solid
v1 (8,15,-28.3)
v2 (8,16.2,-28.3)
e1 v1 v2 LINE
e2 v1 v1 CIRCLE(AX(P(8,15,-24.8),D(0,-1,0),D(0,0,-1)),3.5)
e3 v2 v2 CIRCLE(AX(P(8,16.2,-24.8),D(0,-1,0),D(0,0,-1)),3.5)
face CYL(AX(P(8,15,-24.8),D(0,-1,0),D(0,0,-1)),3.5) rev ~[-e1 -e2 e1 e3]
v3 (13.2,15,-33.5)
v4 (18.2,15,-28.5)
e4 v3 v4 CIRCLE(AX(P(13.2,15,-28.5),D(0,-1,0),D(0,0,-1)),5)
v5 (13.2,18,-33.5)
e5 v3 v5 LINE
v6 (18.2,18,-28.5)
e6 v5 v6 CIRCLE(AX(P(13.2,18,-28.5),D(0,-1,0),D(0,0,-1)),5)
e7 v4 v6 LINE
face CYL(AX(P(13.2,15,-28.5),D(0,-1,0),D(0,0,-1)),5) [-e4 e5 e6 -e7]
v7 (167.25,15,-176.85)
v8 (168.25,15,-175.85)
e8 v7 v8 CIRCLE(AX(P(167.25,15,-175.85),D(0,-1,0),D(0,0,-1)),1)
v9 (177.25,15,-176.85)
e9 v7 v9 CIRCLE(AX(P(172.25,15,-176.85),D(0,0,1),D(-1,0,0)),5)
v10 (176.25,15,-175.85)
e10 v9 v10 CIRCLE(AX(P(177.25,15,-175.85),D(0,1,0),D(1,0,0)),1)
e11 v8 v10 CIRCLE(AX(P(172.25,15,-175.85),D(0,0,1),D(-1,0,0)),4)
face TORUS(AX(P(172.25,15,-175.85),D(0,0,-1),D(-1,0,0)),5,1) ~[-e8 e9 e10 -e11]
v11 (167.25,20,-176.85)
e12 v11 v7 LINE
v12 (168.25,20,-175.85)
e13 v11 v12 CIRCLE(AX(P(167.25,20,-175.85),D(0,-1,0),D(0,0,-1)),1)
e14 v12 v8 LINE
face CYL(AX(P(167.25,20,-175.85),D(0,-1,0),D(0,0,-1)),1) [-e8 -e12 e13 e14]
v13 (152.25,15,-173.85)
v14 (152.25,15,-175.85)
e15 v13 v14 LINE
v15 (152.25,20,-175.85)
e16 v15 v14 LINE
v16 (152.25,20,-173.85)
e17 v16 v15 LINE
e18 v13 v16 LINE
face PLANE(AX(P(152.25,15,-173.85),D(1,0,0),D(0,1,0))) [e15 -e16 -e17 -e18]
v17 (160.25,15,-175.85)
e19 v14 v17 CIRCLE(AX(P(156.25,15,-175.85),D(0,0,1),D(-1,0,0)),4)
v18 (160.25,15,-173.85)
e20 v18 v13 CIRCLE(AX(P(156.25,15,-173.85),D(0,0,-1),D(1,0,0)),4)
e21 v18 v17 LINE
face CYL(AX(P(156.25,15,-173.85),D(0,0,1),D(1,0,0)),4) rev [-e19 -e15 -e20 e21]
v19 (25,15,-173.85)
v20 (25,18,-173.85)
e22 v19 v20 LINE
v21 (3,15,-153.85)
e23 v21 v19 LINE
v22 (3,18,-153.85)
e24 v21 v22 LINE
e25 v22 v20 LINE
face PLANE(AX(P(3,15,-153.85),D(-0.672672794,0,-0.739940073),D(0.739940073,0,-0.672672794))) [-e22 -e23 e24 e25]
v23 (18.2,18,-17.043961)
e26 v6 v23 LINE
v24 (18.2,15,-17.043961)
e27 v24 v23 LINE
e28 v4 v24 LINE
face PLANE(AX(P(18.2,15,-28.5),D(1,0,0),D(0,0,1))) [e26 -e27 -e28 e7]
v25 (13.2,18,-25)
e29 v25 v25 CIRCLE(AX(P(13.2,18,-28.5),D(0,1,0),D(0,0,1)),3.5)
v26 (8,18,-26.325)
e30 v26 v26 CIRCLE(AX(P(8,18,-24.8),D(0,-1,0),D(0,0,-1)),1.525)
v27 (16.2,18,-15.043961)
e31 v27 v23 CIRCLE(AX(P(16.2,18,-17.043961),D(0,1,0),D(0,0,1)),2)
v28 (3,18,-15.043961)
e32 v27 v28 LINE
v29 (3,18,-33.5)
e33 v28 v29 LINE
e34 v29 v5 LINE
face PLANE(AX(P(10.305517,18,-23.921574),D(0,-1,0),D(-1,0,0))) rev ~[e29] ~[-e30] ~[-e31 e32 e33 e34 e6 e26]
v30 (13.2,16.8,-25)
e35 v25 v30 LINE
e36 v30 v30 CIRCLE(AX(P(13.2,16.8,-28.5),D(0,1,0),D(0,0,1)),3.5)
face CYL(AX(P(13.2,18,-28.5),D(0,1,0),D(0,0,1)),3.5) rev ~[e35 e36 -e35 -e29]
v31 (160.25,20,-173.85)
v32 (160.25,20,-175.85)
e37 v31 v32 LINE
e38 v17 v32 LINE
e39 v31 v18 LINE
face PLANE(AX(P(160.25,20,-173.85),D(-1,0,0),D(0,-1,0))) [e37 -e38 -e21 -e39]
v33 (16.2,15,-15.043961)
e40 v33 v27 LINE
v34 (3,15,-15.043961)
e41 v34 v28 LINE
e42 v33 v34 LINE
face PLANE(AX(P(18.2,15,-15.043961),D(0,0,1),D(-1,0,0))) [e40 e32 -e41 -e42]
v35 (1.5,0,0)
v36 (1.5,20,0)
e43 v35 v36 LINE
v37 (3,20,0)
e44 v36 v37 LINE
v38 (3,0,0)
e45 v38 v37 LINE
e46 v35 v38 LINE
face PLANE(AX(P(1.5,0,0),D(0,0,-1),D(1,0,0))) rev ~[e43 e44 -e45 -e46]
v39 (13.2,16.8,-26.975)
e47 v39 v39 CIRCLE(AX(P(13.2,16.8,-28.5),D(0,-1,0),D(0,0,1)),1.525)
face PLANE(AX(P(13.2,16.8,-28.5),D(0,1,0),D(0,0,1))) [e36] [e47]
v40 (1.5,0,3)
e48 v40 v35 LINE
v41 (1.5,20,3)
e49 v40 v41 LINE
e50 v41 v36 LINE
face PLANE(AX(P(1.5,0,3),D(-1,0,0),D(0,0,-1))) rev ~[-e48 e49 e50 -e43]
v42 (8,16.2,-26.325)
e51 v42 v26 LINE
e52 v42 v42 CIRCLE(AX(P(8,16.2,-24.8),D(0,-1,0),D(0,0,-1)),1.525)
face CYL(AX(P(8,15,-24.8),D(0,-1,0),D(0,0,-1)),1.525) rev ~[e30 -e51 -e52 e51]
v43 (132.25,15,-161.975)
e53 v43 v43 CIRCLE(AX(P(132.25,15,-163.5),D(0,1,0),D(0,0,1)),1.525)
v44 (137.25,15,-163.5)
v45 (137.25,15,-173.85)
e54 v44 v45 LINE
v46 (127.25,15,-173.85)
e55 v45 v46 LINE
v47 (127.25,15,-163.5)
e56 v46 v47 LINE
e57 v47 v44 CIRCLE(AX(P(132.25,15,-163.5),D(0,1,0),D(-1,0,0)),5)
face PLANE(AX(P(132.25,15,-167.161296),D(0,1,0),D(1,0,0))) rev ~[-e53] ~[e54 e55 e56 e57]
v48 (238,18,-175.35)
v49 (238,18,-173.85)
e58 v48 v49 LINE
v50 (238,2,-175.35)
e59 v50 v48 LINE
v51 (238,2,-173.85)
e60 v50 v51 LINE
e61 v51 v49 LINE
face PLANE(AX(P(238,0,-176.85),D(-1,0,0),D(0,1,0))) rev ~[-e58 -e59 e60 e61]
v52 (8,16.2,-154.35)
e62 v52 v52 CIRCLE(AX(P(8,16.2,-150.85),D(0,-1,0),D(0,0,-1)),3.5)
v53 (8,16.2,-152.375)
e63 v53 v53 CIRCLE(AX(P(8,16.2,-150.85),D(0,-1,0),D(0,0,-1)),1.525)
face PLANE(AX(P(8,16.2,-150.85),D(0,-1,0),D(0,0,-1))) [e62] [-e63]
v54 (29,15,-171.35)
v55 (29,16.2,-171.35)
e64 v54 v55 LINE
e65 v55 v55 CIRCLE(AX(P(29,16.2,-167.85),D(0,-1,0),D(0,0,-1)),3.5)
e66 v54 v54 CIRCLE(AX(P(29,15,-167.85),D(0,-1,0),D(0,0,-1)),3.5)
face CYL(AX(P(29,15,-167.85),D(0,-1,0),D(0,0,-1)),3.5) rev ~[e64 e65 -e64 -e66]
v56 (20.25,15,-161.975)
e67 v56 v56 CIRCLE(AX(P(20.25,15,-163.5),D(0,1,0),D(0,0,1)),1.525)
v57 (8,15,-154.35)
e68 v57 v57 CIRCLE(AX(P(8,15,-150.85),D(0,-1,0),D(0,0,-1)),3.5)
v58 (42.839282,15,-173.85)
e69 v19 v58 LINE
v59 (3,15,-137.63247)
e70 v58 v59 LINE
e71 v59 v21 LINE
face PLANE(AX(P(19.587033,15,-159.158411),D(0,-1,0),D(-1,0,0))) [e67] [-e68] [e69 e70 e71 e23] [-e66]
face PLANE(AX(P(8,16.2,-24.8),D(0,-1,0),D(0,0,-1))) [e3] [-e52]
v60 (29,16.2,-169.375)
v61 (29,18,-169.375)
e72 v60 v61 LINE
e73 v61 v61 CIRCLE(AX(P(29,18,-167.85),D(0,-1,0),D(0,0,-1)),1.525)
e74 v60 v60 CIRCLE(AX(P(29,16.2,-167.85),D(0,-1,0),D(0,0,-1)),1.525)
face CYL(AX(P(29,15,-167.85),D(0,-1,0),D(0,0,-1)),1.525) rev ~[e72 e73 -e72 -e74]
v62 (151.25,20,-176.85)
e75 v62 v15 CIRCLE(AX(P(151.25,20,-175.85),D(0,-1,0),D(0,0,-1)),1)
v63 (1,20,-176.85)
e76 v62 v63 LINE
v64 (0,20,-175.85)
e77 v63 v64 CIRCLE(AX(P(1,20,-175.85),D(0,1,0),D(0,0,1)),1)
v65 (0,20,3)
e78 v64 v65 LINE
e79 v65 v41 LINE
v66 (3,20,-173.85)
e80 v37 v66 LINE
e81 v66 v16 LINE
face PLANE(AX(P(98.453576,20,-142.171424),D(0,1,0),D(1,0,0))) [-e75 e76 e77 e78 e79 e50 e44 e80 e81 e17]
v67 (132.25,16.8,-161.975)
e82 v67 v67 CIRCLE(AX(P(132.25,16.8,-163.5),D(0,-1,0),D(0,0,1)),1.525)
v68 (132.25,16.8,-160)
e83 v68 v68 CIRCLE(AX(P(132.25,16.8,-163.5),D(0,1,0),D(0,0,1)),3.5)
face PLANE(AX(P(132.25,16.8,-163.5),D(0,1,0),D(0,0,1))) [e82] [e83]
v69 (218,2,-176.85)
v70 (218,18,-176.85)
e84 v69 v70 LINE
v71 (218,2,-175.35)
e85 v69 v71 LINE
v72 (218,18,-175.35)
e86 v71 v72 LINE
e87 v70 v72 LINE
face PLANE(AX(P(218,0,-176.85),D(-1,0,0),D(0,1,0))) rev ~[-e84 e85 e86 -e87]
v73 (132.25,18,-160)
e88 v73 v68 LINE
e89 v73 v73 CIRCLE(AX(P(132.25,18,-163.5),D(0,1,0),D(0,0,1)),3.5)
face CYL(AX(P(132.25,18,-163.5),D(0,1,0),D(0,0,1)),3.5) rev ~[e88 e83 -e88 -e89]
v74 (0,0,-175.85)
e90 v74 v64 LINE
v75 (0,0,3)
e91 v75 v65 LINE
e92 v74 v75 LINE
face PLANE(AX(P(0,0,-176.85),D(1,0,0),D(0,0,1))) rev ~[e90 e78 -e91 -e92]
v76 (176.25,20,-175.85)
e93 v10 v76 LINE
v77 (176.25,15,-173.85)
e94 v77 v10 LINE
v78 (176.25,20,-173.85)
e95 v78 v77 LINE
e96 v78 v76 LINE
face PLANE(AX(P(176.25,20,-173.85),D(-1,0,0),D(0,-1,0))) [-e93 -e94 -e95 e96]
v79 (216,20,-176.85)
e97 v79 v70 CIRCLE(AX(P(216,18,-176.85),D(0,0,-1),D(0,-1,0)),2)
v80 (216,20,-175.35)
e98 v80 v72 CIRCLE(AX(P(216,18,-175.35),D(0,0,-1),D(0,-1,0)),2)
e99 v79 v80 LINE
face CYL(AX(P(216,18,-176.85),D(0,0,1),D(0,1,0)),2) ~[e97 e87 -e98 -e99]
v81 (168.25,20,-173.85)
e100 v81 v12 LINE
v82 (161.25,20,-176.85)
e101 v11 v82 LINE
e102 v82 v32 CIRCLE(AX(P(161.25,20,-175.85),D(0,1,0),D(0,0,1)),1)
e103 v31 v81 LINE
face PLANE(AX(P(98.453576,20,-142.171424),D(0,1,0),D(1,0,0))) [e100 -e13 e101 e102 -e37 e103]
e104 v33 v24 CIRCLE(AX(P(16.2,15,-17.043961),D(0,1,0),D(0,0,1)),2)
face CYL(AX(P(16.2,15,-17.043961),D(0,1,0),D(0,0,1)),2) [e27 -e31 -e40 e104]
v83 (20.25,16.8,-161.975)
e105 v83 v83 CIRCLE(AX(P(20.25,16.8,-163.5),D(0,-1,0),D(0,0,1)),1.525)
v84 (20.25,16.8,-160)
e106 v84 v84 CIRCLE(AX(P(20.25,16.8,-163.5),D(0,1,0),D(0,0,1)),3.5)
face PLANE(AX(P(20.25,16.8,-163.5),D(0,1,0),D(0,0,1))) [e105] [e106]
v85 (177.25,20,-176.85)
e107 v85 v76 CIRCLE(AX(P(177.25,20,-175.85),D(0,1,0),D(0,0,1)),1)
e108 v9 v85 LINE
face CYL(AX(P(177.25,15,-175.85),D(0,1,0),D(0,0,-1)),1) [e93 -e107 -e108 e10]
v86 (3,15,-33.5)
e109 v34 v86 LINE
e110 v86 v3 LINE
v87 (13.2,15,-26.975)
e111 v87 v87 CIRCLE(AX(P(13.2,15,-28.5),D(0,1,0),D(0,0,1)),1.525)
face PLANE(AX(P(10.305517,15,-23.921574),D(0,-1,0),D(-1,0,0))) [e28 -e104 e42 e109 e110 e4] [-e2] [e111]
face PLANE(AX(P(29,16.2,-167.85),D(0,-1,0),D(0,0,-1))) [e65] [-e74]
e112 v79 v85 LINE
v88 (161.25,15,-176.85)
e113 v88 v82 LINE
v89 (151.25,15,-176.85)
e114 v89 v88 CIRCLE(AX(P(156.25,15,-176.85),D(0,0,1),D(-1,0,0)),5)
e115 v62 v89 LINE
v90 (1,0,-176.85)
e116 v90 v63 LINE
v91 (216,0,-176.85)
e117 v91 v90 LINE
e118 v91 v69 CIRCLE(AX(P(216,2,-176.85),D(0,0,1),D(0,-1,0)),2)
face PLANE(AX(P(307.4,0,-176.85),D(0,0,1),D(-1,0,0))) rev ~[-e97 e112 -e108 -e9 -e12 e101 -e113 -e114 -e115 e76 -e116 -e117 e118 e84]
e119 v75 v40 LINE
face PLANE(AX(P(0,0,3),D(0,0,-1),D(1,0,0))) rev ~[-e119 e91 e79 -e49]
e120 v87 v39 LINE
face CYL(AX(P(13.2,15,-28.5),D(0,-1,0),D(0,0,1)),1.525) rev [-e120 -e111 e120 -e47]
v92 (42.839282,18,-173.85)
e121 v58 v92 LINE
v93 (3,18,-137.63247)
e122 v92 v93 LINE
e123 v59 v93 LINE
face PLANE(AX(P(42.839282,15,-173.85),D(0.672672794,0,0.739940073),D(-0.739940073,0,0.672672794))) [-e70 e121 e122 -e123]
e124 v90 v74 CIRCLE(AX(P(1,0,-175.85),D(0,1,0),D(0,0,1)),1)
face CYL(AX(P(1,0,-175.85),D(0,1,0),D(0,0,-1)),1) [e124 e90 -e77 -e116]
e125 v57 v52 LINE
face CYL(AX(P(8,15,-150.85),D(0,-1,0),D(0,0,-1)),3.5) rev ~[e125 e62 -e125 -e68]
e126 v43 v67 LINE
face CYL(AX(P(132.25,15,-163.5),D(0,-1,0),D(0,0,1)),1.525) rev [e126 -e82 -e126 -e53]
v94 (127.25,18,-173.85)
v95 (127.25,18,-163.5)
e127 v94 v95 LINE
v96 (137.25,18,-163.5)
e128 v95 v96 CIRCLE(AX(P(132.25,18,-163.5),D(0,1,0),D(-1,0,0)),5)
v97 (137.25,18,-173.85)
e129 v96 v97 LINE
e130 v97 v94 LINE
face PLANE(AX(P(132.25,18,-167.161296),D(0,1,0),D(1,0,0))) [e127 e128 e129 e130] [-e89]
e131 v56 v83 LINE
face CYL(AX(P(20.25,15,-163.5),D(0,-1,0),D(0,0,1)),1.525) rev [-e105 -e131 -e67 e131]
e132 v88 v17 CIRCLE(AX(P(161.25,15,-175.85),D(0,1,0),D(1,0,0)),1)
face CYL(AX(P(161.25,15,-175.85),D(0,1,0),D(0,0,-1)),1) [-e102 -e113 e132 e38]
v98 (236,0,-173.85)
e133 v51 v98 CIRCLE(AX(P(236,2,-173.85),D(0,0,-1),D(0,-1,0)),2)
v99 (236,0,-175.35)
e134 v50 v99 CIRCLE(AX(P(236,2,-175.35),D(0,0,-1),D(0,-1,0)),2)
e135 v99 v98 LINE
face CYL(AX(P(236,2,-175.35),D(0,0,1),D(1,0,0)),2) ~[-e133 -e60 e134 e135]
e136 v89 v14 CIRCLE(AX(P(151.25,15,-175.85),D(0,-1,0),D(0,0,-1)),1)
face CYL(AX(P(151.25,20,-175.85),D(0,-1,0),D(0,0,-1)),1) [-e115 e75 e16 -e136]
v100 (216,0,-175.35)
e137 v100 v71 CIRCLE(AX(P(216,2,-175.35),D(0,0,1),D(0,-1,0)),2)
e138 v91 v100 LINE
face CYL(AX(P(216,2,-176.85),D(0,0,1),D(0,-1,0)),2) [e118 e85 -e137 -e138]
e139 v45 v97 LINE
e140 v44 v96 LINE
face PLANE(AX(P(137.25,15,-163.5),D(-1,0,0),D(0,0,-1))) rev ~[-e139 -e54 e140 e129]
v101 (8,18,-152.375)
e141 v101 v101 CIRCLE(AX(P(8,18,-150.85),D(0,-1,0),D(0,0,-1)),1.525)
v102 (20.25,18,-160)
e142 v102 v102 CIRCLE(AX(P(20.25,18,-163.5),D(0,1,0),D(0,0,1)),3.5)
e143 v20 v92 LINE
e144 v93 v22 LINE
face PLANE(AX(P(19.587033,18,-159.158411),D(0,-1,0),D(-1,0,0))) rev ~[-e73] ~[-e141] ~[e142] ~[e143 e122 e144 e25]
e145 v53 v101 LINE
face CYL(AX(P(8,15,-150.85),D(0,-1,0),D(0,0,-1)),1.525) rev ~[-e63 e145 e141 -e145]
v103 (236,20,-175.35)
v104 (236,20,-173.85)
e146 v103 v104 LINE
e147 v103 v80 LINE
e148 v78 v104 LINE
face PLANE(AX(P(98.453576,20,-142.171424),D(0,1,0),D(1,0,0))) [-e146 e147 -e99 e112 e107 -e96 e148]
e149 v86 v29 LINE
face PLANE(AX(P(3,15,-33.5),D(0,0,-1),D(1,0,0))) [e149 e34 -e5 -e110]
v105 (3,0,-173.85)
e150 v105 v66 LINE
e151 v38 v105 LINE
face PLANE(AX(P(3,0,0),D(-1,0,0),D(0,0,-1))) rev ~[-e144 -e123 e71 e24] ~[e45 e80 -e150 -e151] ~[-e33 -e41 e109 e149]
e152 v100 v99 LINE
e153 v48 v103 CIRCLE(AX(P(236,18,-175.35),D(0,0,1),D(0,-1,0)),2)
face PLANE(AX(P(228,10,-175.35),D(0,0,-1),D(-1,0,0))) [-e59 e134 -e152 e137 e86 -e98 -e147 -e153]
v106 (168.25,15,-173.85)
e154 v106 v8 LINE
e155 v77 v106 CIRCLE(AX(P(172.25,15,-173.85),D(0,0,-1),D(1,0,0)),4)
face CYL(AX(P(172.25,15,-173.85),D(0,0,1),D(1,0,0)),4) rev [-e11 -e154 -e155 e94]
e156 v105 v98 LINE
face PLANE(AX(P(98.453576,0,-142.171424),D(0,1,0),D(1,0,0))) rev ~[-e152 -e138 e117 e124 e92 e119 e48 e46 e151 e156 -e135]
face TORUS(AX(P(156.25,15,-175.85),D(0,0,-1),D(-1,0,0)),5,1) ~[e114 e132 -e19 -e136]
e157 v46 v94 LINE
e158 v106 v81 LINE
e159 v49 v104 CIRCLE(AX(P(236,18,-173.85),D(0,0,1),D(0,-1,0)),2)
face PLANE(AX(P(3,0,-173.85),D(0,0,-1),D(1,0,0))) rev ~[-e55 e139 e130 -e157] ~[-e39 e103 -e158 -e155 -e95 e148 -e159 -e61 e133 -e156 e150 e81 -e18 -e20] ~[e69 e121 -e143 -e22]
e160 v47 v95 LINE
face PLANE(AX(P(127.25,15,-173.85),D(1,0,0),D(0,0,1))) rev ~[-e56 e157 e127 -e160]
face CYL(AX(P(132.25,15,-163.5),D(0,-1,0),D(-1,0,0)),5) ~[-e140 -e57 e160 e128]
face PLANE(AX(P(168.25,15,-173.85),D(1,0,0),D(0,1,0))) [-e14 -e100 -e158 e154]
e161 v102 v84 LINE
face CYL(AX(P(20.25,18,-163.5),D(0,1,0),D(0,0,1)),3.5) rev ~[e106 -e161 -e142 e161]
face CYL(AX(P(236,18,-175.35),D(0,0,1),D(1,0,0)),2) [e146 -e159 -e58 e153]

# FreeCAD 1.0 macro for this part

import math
import FreeCAD as App
import Part
import Sketcher
Q = App.Units.Quantity


def edges_at(feature, points):
    """Names of the edges that pass closest to the given points."""
    edges = feature.Shape.Edges
    near = lambda p: min(range(len(edges)), key=lambda i: edges[i].distToShape(Part.Vertex(*p))[0])
    return sorted({f"Edge{near(p) + 1}" for p in points})


def add_polygon(sketch, points):
    """Adds a closed chain of lines whose ends are joined by coincident constraints."""
    first, n = sketch.GeometryCount, len(points)
    for a, b in zip(points, points[1:] + points[:1]):
        sketch.addGeometry(Part.LineSegment(App.Vector(*a, 0), App.Vector(*b, 0)), False)
    for i in range(n):
        sketch.addConstraint(Sketcher.Constraint("Coincident", first + i, 2, first + (i + 1) % n, 1))

doc = App.newDocument("Part")
body = doc.addObject("PartDesign::Body", "Body")

# Sketch on XZ plane
sketch1 = doc.addObject("Sketcher::SketchObject", "Sketch")
body.addObject(sketch1)
sketch1.AttachmentSupport = (doc.XZ_Plane, [""])
sketch1.MapMode = "FlatFace"
add_polygon(sketch1, [(1.5, 0), (3, 0), (3, -173.85), (307.4, -173.85), (307.4, -176.85), (0, -176.85), (0, 3), (1.5, 3)])  # lines 0-7
sketch1.addConstraint(Sketcher.Constraint("Horizontal", 0))
sketch1.addConstraint(Sketcher.Constraint("Vertical", 1))
sketch1.addConstraint(Sketcher.Constraint("Horizontal", 2))
sketch1.addConstraint(Sketcher.Constraint("Vertical", 3))
sketch1.addConstraint(Sketcher.Constraint("Horizontal", 4))
sketch1.addConstraint(Sketcher.Constraint("Vertical", 5))
sketch1.addConstraint(Sketcher.Constraint("Horizontal", 6))
sketch1.addConstraint(Sketcher.Constraint("Vertical", 7))
sketch1.addConstraint(Sketcher.Constraint("PointOnObject", 0, 2, -1))
sketch1.addConstraint(Sketcher.Constraint("PointOnObject", 4, 2, -2))
sketch1.addConstraint(Sketcher.Constraint("Equal", 0, 6))
sketch1.addConstraint(Sketcher.Constraint("Equal", 3, 7))
sketch1.addConstraint(Sketcher.Constraint("DistanceY", 3, 2, 3, 1, Q("3 mm")))
sketch1.addConstraint(Sketcher.Constraint("DistanceX", 0, 1, 0, 2, Q("1.5 mm")))
sketch1.addConstraint(Sketcher.Constraint("DistanceX", 2, 1, 2, 2, Q("304.4 mm")))
sketch1.addConstraint(Sketcher.Constraint("DistanceY", 1, 2, 1, 1, Q("173.85 mm")))
pad1 = doc.addObject("PartDesign::Pad", "Pad")
body.addObject(pad1)
pad1.Profile = sketch1
pad1.Length = 20
pad1.Reversed = True

# Sketch on XZ plane
sketch2 = doc.addObject("Sketcher::SketchObject", "Sketch001")
body.addObject(sketch2)
sketch2.AttachmentSupport = (doc.XZ_Plane, [""])
sketch2.MapMode = "FlatFace"
sketch2.AttachmentOffset = App.Placement(App.Vector(0, 0, -15), App.Rotation())
add_polygon(sketch2, [(25, -173.85), (3, -153.85), (3, -137.63247), (42.839282, -173.85)])  # lines 0-3
sketch2.addGeometry(Part.Circle(App.Vector(20.25, -163.5, 0), App.Vector(0, 0, 1), 1.525), False)  # 4
sketch2.addGeometry(Part.LineSegment(App.Vector(137.25, -163.5, 0), App.Vector(137.25, -173.85, 0)), False)  # 5
sketch2.addGeometry(Part.LineSegment(App.Vector(137.25, -173.85, 0), App.Vector(127.25, -173.85, 0)), False)  # 6
sketch2.addGeometry(Part.LineSegment(App.Vector(127.25, -173.85, 0), App.Vector(127.25, -163.5, 0)), False)  # 7
sketch2.addGeometry(Part.ArcOfCircle(Part.Circle(App.Vector(132.25, -163.5, 0), App.Vector(0, 0, 1), 5), math.radians(0), math.radians(180)), False)  # 8
sketch2.addGeometry(Part.Circle(App.Vector(132.25, -163.5, 0), App.Vector(0, 0, 1), 1.525), False)  # 9
sketch2.addGeometry(Part.LineSegment(App.Vector(13.2, -33.5, 0), App.Vector(3, -33.5, 0)), False)  # 10
sketch2.addGeometry(Part.LineSegment(App.Vector(3, -33.5, 0), App.Vector(3, -15.043961, 0)), False)  # 11
sketch2.addGeometry(Part.LineSegment(App.Vector(3, -15.043961, 0), App.Vector(18.2, -15.043961, 0)), False)  # 12
sketch2.addGeometry(Part.LineSegment(App.Vector(18.2, -15.043961, 0), App.Vector(18.2, -28.5, 0)), False)  # 13
sketch2.addGeometry(Part.ArcOfCircle(Part.Circle(App.Vector(13.2, -28.5, 0), App.Vector(0, 0, 1), 5), math.radians(-90), math.radians(0)), False)  # 14
sketch2.addGeometry(Part.Circle(App.Vector(13.2, -28.5, 0), App.Vector(0, 0, 1), 1.525), False)  # 15
sketch2.addConstraint(Sketcher.Constraint("Coincident", 5, 2, 6, 1))
sketch2.addConstraint(Sketcher.Constraint("Coincident", 6, 2, 7, 1))
sketch2.addConstraint(Sketcher.Constraint("Tangent", 7, 2, 8, 2))
sketch2.addConstraint(Sketcher.Constraint("Tangent", 8, 1, 5, 1))
sketch2.addConstraint(Sketcher.Constraint("Coincident", 10, 2, 11, 1))
sketch2.addConstraint(Sketcher.Constraint("Coincident", 11, 2, 12, 1))
sketch2.addConstraint(Sketcher.Constraint("Coincident", 12, 2, 13, 1))
sketch2.addConstraint(Sketcher.Constraint("Tangent", 13, 2, 14, 2))
sketch2.addConstraint(Sketcher.Constraint("Tangent", 14, 1, 10, 1))
sketch2.addConstraint(Sketcher.Constraint("Vertical", 1))
sketch2.addConstraint(Sketcher.Constraint("Horizontal", 3))
sketch2.addConstraint(Sketcher.Constraint("Vertical", 5))
sketch2.addConstraint(Sketcher.Constraint("Horizontal", 6))
sketch2.addConstraint(Sketcher.Constraint("Vertical", 7))
sketch2.addConstraint(Sketcher.Constraint("Horizontal", 10))
sketch2.addConstraint(Sketcher.Constraint("Vertical", 11))
sketch2.addConstraint(Sketcher.Constraint("Horizontal", 12))
sketch2.addConstraint(Sketcher.Constraint("Vertical", 13))
sketch2.addConstraint(Sketcher.Constraint("Coincident", 9, 3, 8, 3))
sketch2.addConstraint(Sketcher.Constraint("Coincident", 15, 3, 14, 3))
sketch2.addConstraint(Sketcher.Constraint("Equal", 4, 9))
sketch2.addConstraint(Sketcher.Constraint("Equal", 8, 14))
sketch2.addConstraint(Sketcher.Constraint("Equal", 9, 15))
sketch2.addConstraint(Sketcher.Constraint("Parallel", 0, 2))
sketch2.addConstraint(Sketcher.Constraint("Horizontal", 4, 3, 8, 3))
sketch2.addConstraint(Sketcher.Constraint("Horizontal", 3, 2, 5, 2))
sketch2.addConstraint(Sketcher.Constraint("Vertical", 1, 2, 10, 2))
sketch2.addConstraint(Sketcher.Constraint("Radius", 8, Q("5 mm")))
sketch2.addConstraint(Sketcher.Constraint("Diameter", 4, Q("3.05 mm")))
sketch2.addConstraint(Sketcher.Constraint("DistanceX", 10, 2, 10, 1, Q("10.2 mm")))
sketch2.addConstraint(Sketcher.Constraint("DistanceX", -1, 1, 0, 2, Q("3 mm")))
sketch2.addConstraint(Sketcher.Constraint("DistanceX", -1, 1, 3, 2, Q("25 mm")))
sketch2.addConstraint(Sketcher.Constraint("DistanceX", 4, 3, 8, 3, Q("112 mm")))
sketch2.addConstraint(Sketcher.Constraint("DistanceY", 4, 3, 14, 3, Q("135 mm")))
sketch2.addConstraint(Sketcher.Constraint("DistanceY", 2, 2, 0, 2, Q("20 mm")))
sketch2.addConstraint(Sketcher.Constraint("DistanceY", 5, 2, 5, 1, Q("10.35 mm")))
sketch2.addConstraint(Sketcher.Constraint("DistanceY", 4, 3, -1, 1, Q("163.5 mm")))
sketch2.addConstraint(Sketcher.Constraint("DistanceX", -1, 1, 4, 3, Q("20.25 mm")))
sketch2.addConstraint(Sketcher.Constraint("DistanceY", 1, 1, 1, 2, Q("16.21753 mm")))
sketch2.addConstraint(Sketcher.Constraint("DistanceY", 11, 1, 11, 2, Q("18.456039 mm")))
pad2 = doc.addObject("PartDesign::Pad", "Pad001")
body.addObject(pad2)
pad2.Profile = sketch2
pad2.Length = 3
pad2.Reversed = True

# Sketch on XY plane
sketch3 = doc.addObject("Sketcher::SketchObject", "Sketch002")
body.addObject(sketch3)
sketch3.AttachmentSupport = (doc.XY_Plane, [""])
sketch3.MapMode = "FlatFace"
sketch3.AttachmentOffset = App.Placement(App.Vector(0, 0, -176.85), App.Rotation())
add_polygon(sketch3, [(307.4, 20), (307.4, 10.5), (276.4, 10.5), (276.4, 20)])  # lines 0-3
sketch3.addConstraint(Sketcher.Constraint("Vertical", 0))
sketch3.addConstraint(Sketcher.Constraint("Horizontal", 1))
sketch3.addConstraint(Sketcher.Constraint("Vertical", 2))
sketch3.addConstraint(Sketcher.Constraint("Horizontal", 3))
sketch3.addConstraint(Sketcher.Constraint("DistanceX", 1, 2, 1, 1, Q("31 mm")))
sketch3.addConstraint(Sketcher.Constraint("DistanceY", 0, 2, 0, 1, Q("9.5 mm")))
sketch3.addConstraint(Sketcher.Constraint("DistanceY", -1, 1, 2, 2, Q("20 mm")))
sketch3.addConstraint(Sketcher.Constraint("DistanceX", -1, 1, 0, 2, Q("307.4 mm")))
pocket1 = doc.addObject("PartDesign::Pocket", "Pocket")
body.addObject(pocket1)
pocket1.Profile = sketch3
pocket1.Type = "UpToFirst"
pocket1.Reversed = True

# Sketch on XZ plane
sketch4 = doc.addObject("Sketcher::SketchObject", "Sketch003")
body.addObject(sketch4)
sketch4.AttachmentSupport = (doc.XZ_Plane, [""])
sketch4.MapMode = "FlatFace"
sketch4.AttachmentOffset = App.Placement(App.Vector(0, 0, -18), App.Rotation())
sketch4.addGeometry(Part.Circle(App.Vector(13.2, -28.5, 0), App.Vector(0, 0, 1), 3.5), False)
sketch4.addGeometry(Part.Circle(App.Vector(20.25, -163.5, 0), App.Vector(0, 0, 1), 3.5), False)
sketch4.addGeometry(Part.Circle(App.Vector(132.25, -163.5, 0), App.Vector(0, 0, 1), 3.5), False)
sketch4.addConstraint(Sketcher.Constraint("Equal", 0, 1))
sketch4.addConstraint(Sketcher.Constraint("Equal", 1, 2))
sketch4.addConstraint(Sketcher.Constraint("Horizontal", 1, 3, 2, 3))
sketch4.addConstraint(Sketcher.Constraint("Diameter", 0, Q("7 mm")))
sketch4.addConstraint(Sketcher.Constraint("DistanceY", 1, 3, 0, 3, Q("135 mm")))
sketch4.addConstraint(Sketcher.Constraint("DistanceX", 1, 3, 2, 3, Q("112 mm")))
sketch4.addConstraint(Sketcher.Constraint("DistanceX", -1, 1, 0, 3, Q("13.2 mm")))
sketch4.addConstraint(Sketcher.Constraint("DistanceY", 0, 3, -1, 1, Q("28.5 mm")))
sketch4.addConstraint(Sketcher.Constraint("DistanceX", -1, 1, 1, 3, Q("20.25 mm")))
pocket2 = doc.addObject("PartDesign::Pocket", "Pocket001")
body.addObject(pocket2)
pocket2.Profile = sketch4
pocket2.Length = 1.2
pocket2.Reversed = True

# Sketch on XZ plane
sketch5 = doc.addObject("Sketcher::SketchObject", "Sketch004")
body.addObject(sketch5)
sketch5.AttachmentSupport = (doc.XZ_Plane, [""])
sketch5.MapMode = "FlatFace"
sketch5.AttachmentOffset = App.Placement(App.Vector(0, 0, -15), App.Rotation())
sketch5.addGeometry(Part.Circle(App.Vector(29, -167.85, 0), App.Vector(0, 0, 1), 1.525), False)
sketch5.addConstraint(Sketcher.Constraint("Diameter", 0, Q("3.05 mm")))
sketch5.addConstraint(Sketcher.Constraint("DistanceX", -1, 1, 0, 3, Q("29 mm")))
sketch5.addConstraint(Sketcher.Constraint("DistanceY", 0, 3, -1, 1, Q("167.85 mm")))
pocket3 = doc.addObject("PartDesign::Pocket", "Pocket002")
body.addObject(pocket3)
pocket3.Profile = sketch5
pocket3.Type = "UpToFirst"

# Sketch on XZ plane
sketch6 = doc.addObject("Sketcher::SketchObject", "Sketch005")
body.addObject(sketch6)
sketch6.AttachmentSupport = (doc.XZ_Plane, [""])
sketch6.MapMode = "FlatFace"
sketch6.AttachmentOffset = App.Placement(App.Vector(0, 0, -15), App.Rotation())
sketch6.addGeometry(Part.Circle(App.Vector(8, -150.85, 0), App.Vector(0, 0, 1), 1.525), False)
sketch6.addConstraint(Sketcher.Constraint("Diameter", 0, Q("3.05 mm")))
sketch6.addConstraint(Sketcher.Constraint("DistanceX", -1, 1, 0, 3, Q("8 mm")))
sketch6.addConstraint(Sketcher.Constraint("DistanceY", 0, 3, -1, 1, Q("150.85 mm")))
pocket4 = doc.addObject("PartDesign::Pocket", "Pocket003")
body.addObject(pocket4)
pocket4.Profile = sketch6
pocket4.Type = "UpToFirst"

# Sketch on XZ plane
sketch7 = doc.addObject("Sketcher::SketchObject", "Sketch006")
body.addObject(sketch7)
sketch7.AttachmentSupport = (doc.XZ_Plane, [""])
sketch7.MapMode = "FlatFace"
sketch7.AttachmentOffset = App.Placement(App.Vector(0, 0, -15), App.Rotation())
sketch7.addGeometry(Part.Circle(App.Vector(8, -24.8, 0), App.Vector(0, 0, 1), 1.525), False)
sketch7.addConstraint(Sketcher.Constraint("Diameter", 0, Q("3.05 mm")))
sketch7.addConstraint(Sketcher.Constraint("DistanceX", -1, 1, 0, 3, Q("8 mm")))
sketch7.addConstraint(Sketcher.Constraint("DistanceY", 0, 3, -1, 1, Q("24.8 mm")))
pocket5 = doc.addObject("PartDesign::Pocket", "Pocket004")
body.addObject(pocket5)
pocket5.Profile = sketch7
pocket5.Type = "UpToFirst"
doc.recompute()

fillet = doc.addObject("PartDesign::Fillet", "Fillet")
body.addObject(fillet)
fillet.Base = (pocket5, edges_at(pocket5, [(0, 10, -176.85)]))
fillet.Radius = 1
doc.recompute()

fillet2 = doc.addObject("PartDesign::Fillet", "Fillet001")
body.addObject(fillet2)
fillet2.Base = (fillet, edges_at(fillet, [(276.4, 10.5, -175.35)]))
fillet2.Radius = 1

# Sketch on XZ plane
sketch8 = doc.addObject("Sketcher::SketchObject", "Sketch007")
body.addObject(sketch8)
sketch8.AttachmentSupport = (doc.XZ_Plane, [""])
sketch8.MapMode = "FlatFace"
sketch8.AttachmentOffset = App.Placement(App.Vector(0, 0, -15), App.Rotation())
sketch8.addGeometry(Part.Circle(App.Vector(8, -24.8, 0), App.Vector(0, 0, 1), 3.5), False)
sketch8.addGeometry(Part.Circle(App.Vector(8, -150.85, 0), App.Vector(0, 0, 1), 3.5), False)
sketch8.addGeometry(Part.Circle(App.Vector(29, -167.85, 0), App.Vector(0, 0, 1), 3.5), False)
sketch8.addConstraint(Sketcher.Constraint("Equal", 0, 1))
sketch8.addConstraint(Sketcher.Constraint("Equal", 1, 2))
sketch8.addConstraint(Sketcher.Constraint("Vertical", 0, 3, 1, 3))
sketch8.addConstraint(Sketcher.Constraint("Diameter", 0, Q("7 mm")))
sketch8.addConstraint(Sketcher.Constraint("DistanceX", -1, 1, 0, 3, Q("8 mm")))
sketch8.addConstraint(Sketcher.Constraint("DistanceX", -1, 1, 2, 3, Q("29 mm")))
sketch8.addConstraint(Sketcher.Constraint("DistanceY", 2, 3, 1, 3, Q("17 mm")))
sketch8.addConstraint(Sketcher.Constraint("DistanceY", 0, 3, -1, 1, Q("24.8 mm")))
sketch8.addConstraint(Sketcher.Constraint("DistanceY", 1, 3, -1, 1, Q("150.85 mm")))
pocket6 = doc.addObject("PartDesign::Pocket", "Pocket005")
body.addObject(pocket6)
pocket6.Profile = sketch8
pocket6.Length = 1.2

# Sketch on XY plane
sketch9 = doc.addObject("Sketcher::SketchObject", "Sketch008")
body.addObject(sketch9)
sketch9.AttachmentSupport = (doc.XY_Plane, [""])
sketch9.MapMode = "FlatFace"
sketch9.AttachmentOffset = App.Placement(App.Vector(0, 0, -176.85), App.Rotation())
add_polygon(sketch9, [(307.4, 20), (307.4, 0), (238, 0), (238, 20)])  # lines 0-3
sketch9.addConstraint(Sketcher.Constraint("Vertical", 0))
sketch9.addConstraint(Sketcher.Constraint("Horizontal", 1))
sketch9.addConstraint(Sketcher.Constraint("Vertical", 2))
sketch9.addConstraint(Sketcher.Constraint("Horizontal", 3))
sketch9.addConstraint(Sketcher.Constraint("PointOnObject", 0, 2, -1))
sketch9.addConstraint(Sketcher.Constraint("DistanceY", 0, 2, 0, 1, Q("20 mm")))
sketch9.addConstraint(Sketcher.Constraint("DistanceX", 1, 2, 1, 1, Q("69.4 mm")))
sketch9.addConstraint(Sketcher.Constraint("DistanceX", -1, 1, 1, 2, Q("238 mm")))
pocket7 = doc.addObject("PartDesign::Pocket", "Pocket006")
body.addObject(pocket7)
pocket7.Profile = sketch9
pocket7.Length = 3
pocket7.Reversed = True

# Sketch on XY plane
sketch10 = doc.addObject("Sketcher::SketchObject", "Sketch009")
body.addObject(sketch10)
sketch10.AttachmentSupport = (doc.XY_Plane, [""])
sketch10.MapMode = "FlatFace"
sketch10.AttachmentOffset = App.Placement(App.Vector(0, 0, -176.85), App.Rotation())
add_polygon(sketch10, [(238, 20), (238, 0), (218, 0), (218, 20)])  # lines 0-3
sketch10.addConstraint(Sketcher.Constraint("Vertical", 0))
sketch10.addConstraint(Sketcher.Constraint("Horizontal", 1))
sketch10.addConstraint(Sketcher.Constraint("Vertical", 2))
sketch10.addConstraint(Sketcher.Constraint("Horizontal", 3))
sketch10.addConstraint(Sketcher.Constraint("PointOnObject", 0, 2, -1))
sketch10.addConstraint(Sketcher.Constraint("Equal", 3, 0))
sketch10.addConstraint(Sketcher.Constraint("DistanceX", 1, 2, 1, 1, Q("20 mm")))
sketch10.addConstraint(Sketcher.Constraint("DistanceX", -1, 1, 0, 2, Q("238 mm")))
pocket8 = doc.addObject("PartDesign::Pocket", "Pocket007")
body.addObject(pocket8)
pocket8.Profile = sketch10
pocket8.Length = 1.5
pocket8.Reversed = True
doc.recompute()

fillet3 = doc.addObject("PartDesign::Fillet", "Fillet002")
body.addObject(fillet3)
fillet3.Base = (pocket8, edges_at(pocket8, [(218, 20, -176.1), (218, 0, -176.1)]))
fillet3.Radius = 2
doc.recompute()

fillet4 = doc.addObject("PartDesign::Fillet", "Fillet003")
body.addObject(fillet4)
fillet4.Base = (fillet3, edges_at(fillet3, [(238, 20, -174.6), (238, 0, -174.6)]))
fillet4.Radius = 2
doc.recompute()

fillet5 = doc.addObject("PartDesign::Fillet", "Fillet004")
body.addObject(fillet5)
fillet5.Base = (fillet4, edges_at(fillet4, [(18.2, 16.5, -15.044)]))
fillet5.Radius = 2

# Sketch on XY plane
sketch11 = doc.addObject("Sketcher::SketchObject", "Sketch010")
body.addObject(sketch11)
sketch11.AttachmentSupport = (doc.XY_Plane, [""])
sketch11.MapMode = "FlatFace"
sketch11.AttachmentOffset = App.Placement(App.Vector(0, 0, -173.85), App.Rotation())
sketch11.addGeometry(Part.LineSegment(App.Vector(152.25, 20, 0), App.Vector(152.25, 15, 0)), False)
sketch11.addGeometry(Part.ArcOfCircle(Part.Circle(App.Vector(156.25, 15, 0), App.Vector(0, 0, 1), 4), math.radians(180), math.radians(360)), False)
sketch11.addGeometry(Part.LineSegment(App.Vector(160.25, 15, 0), App.Vector(160.25, 20, 0)), False)
sketch11.addGeometry(Part.LineSegment(App.Vector(160.25, 20, 0), App.Vector(152.25, 20, 0)), False)
sketch11.addGeometry(Part.LineSegment(App.Vector(168.25, 20, 0), App.Vector(168.25, 15, 0)), False)
sketch11.addGeometry(Part.ArcOfCircle(Part.Circle(App.Vector(172.25, 15, 0), App.Vector(0, 0, 1), 4), math.radians(180), math.radians(360)), False)
sketch11.addGeometry(Part.LineSegment(App.Vector(176.25, 15, 0), App.Vector(176.25, 20, 0)), False)
sketch11.addGeometry(Part.LineSegment(App.Vector(176.25, 20, 0), App.Vector(168.25, 20, 0)), False)
sketch11.addConstraint(Sketcher.Constraint("Tangent", 0, 2, 1, 1))
sketch11.addConstraint(Sketcher.Constraint("Tangent", 1, 2, 2, 1))
sketch11.addConstraint(Sketcher.Constraint("Coincident", 2, 2, 3, 1))
sketch11.addConstraint(Sketcher.Constraint("Coincident", 3, 2, 0, 1))
sketch11.addConstraint(Sketcher.Constraint("Tangent", 4, 2, 5, 1))
sketch11.addConstraint(Sketcher.Constraint("Tangent", 5, 2, 6, 1))
sketch11.addConstraint(Sketcher.Constraint("Coincident", 6, 2, 7, 1))
sketch11.addConstraint(Sketcher.Constraint("Coincident", 7, 2, 4, 1))
sketch11.addConstraint(Sketcher.Constraint("Vertical", 0))
sketch11.addConstraint(Sketcher.Constraint("Vertical", 2))
sketch11.addConstraint(Sketcher.Constraint("Horizontal", 3))
sketch11.addConstraint(Sketcher.Constraint("Vertical", 4))
sketch11.addConstraint(Sketcher.Constraint("Vertical", 6))
sketch11.addConstraint(Sketcher.Constraint("Horizontal", 7))
sketch11.addConstraint(Sketcher.Constraint("Equal", 1, 5))
sketch11.addConstraint(Sketcher.Constraint("Horizontal", 1, 3, 5, 3))
sketch11.addConstraint(Sketcher.Constraint("Horizontal", 3, 2, 6, 2))
sketch11.addConstraint(Sketcher.Constraint("Radius", 1, Q("4 mm")))
sketch11.addConstraint(Sketcher.Constraint("DistanceY", 0, 2, 0, 1, Q("5 mm")))
sketch11.addConstraint(Sketcher.Constraint("DistanceY", -1, 1, 1, 3, Q("15 mm")))
sketch11.addConstraint(Sketcher.Constraint("DistanceX", 1, 3, 5, 3, Q("16 mm")))
sketch11.addConstraint(Sketcher.Constraint("DistanceX", -1, 1, 1, 3, Q("156.25 mm")))
pocket9 = doc.addObject("PartDesign::Pocket", "Pocket008")
body.addObject(pocket9)
pocket9.Profile = sketch11
pocket9.Length = 10
doc.recompute()

fillet6 = doc.addObject("PartDesign::Fillet", "Fillet005")
body.addObject(fillet6)
fillet6.Base = (pocket9, edges_at(pocket9, [(156.25, 11, -176.85), (152.25, 17.5, -176.85), (160.25, 17.5, -176.85)]))
fillet6.Radius = 1
doc.recompute()

fillet7 = doc.addObject("PartDesign::Fillet", "Fillet006")
body.addObject(fillet7)
fillet7.Base = (fillet6, edges_at(fillet6, [(172.25, 11, -176.85), (168.25, 17.5, -176.85), (176.25, 17.5, -176.85)]))
fillet7.Radius = 1

doc.recompute()
